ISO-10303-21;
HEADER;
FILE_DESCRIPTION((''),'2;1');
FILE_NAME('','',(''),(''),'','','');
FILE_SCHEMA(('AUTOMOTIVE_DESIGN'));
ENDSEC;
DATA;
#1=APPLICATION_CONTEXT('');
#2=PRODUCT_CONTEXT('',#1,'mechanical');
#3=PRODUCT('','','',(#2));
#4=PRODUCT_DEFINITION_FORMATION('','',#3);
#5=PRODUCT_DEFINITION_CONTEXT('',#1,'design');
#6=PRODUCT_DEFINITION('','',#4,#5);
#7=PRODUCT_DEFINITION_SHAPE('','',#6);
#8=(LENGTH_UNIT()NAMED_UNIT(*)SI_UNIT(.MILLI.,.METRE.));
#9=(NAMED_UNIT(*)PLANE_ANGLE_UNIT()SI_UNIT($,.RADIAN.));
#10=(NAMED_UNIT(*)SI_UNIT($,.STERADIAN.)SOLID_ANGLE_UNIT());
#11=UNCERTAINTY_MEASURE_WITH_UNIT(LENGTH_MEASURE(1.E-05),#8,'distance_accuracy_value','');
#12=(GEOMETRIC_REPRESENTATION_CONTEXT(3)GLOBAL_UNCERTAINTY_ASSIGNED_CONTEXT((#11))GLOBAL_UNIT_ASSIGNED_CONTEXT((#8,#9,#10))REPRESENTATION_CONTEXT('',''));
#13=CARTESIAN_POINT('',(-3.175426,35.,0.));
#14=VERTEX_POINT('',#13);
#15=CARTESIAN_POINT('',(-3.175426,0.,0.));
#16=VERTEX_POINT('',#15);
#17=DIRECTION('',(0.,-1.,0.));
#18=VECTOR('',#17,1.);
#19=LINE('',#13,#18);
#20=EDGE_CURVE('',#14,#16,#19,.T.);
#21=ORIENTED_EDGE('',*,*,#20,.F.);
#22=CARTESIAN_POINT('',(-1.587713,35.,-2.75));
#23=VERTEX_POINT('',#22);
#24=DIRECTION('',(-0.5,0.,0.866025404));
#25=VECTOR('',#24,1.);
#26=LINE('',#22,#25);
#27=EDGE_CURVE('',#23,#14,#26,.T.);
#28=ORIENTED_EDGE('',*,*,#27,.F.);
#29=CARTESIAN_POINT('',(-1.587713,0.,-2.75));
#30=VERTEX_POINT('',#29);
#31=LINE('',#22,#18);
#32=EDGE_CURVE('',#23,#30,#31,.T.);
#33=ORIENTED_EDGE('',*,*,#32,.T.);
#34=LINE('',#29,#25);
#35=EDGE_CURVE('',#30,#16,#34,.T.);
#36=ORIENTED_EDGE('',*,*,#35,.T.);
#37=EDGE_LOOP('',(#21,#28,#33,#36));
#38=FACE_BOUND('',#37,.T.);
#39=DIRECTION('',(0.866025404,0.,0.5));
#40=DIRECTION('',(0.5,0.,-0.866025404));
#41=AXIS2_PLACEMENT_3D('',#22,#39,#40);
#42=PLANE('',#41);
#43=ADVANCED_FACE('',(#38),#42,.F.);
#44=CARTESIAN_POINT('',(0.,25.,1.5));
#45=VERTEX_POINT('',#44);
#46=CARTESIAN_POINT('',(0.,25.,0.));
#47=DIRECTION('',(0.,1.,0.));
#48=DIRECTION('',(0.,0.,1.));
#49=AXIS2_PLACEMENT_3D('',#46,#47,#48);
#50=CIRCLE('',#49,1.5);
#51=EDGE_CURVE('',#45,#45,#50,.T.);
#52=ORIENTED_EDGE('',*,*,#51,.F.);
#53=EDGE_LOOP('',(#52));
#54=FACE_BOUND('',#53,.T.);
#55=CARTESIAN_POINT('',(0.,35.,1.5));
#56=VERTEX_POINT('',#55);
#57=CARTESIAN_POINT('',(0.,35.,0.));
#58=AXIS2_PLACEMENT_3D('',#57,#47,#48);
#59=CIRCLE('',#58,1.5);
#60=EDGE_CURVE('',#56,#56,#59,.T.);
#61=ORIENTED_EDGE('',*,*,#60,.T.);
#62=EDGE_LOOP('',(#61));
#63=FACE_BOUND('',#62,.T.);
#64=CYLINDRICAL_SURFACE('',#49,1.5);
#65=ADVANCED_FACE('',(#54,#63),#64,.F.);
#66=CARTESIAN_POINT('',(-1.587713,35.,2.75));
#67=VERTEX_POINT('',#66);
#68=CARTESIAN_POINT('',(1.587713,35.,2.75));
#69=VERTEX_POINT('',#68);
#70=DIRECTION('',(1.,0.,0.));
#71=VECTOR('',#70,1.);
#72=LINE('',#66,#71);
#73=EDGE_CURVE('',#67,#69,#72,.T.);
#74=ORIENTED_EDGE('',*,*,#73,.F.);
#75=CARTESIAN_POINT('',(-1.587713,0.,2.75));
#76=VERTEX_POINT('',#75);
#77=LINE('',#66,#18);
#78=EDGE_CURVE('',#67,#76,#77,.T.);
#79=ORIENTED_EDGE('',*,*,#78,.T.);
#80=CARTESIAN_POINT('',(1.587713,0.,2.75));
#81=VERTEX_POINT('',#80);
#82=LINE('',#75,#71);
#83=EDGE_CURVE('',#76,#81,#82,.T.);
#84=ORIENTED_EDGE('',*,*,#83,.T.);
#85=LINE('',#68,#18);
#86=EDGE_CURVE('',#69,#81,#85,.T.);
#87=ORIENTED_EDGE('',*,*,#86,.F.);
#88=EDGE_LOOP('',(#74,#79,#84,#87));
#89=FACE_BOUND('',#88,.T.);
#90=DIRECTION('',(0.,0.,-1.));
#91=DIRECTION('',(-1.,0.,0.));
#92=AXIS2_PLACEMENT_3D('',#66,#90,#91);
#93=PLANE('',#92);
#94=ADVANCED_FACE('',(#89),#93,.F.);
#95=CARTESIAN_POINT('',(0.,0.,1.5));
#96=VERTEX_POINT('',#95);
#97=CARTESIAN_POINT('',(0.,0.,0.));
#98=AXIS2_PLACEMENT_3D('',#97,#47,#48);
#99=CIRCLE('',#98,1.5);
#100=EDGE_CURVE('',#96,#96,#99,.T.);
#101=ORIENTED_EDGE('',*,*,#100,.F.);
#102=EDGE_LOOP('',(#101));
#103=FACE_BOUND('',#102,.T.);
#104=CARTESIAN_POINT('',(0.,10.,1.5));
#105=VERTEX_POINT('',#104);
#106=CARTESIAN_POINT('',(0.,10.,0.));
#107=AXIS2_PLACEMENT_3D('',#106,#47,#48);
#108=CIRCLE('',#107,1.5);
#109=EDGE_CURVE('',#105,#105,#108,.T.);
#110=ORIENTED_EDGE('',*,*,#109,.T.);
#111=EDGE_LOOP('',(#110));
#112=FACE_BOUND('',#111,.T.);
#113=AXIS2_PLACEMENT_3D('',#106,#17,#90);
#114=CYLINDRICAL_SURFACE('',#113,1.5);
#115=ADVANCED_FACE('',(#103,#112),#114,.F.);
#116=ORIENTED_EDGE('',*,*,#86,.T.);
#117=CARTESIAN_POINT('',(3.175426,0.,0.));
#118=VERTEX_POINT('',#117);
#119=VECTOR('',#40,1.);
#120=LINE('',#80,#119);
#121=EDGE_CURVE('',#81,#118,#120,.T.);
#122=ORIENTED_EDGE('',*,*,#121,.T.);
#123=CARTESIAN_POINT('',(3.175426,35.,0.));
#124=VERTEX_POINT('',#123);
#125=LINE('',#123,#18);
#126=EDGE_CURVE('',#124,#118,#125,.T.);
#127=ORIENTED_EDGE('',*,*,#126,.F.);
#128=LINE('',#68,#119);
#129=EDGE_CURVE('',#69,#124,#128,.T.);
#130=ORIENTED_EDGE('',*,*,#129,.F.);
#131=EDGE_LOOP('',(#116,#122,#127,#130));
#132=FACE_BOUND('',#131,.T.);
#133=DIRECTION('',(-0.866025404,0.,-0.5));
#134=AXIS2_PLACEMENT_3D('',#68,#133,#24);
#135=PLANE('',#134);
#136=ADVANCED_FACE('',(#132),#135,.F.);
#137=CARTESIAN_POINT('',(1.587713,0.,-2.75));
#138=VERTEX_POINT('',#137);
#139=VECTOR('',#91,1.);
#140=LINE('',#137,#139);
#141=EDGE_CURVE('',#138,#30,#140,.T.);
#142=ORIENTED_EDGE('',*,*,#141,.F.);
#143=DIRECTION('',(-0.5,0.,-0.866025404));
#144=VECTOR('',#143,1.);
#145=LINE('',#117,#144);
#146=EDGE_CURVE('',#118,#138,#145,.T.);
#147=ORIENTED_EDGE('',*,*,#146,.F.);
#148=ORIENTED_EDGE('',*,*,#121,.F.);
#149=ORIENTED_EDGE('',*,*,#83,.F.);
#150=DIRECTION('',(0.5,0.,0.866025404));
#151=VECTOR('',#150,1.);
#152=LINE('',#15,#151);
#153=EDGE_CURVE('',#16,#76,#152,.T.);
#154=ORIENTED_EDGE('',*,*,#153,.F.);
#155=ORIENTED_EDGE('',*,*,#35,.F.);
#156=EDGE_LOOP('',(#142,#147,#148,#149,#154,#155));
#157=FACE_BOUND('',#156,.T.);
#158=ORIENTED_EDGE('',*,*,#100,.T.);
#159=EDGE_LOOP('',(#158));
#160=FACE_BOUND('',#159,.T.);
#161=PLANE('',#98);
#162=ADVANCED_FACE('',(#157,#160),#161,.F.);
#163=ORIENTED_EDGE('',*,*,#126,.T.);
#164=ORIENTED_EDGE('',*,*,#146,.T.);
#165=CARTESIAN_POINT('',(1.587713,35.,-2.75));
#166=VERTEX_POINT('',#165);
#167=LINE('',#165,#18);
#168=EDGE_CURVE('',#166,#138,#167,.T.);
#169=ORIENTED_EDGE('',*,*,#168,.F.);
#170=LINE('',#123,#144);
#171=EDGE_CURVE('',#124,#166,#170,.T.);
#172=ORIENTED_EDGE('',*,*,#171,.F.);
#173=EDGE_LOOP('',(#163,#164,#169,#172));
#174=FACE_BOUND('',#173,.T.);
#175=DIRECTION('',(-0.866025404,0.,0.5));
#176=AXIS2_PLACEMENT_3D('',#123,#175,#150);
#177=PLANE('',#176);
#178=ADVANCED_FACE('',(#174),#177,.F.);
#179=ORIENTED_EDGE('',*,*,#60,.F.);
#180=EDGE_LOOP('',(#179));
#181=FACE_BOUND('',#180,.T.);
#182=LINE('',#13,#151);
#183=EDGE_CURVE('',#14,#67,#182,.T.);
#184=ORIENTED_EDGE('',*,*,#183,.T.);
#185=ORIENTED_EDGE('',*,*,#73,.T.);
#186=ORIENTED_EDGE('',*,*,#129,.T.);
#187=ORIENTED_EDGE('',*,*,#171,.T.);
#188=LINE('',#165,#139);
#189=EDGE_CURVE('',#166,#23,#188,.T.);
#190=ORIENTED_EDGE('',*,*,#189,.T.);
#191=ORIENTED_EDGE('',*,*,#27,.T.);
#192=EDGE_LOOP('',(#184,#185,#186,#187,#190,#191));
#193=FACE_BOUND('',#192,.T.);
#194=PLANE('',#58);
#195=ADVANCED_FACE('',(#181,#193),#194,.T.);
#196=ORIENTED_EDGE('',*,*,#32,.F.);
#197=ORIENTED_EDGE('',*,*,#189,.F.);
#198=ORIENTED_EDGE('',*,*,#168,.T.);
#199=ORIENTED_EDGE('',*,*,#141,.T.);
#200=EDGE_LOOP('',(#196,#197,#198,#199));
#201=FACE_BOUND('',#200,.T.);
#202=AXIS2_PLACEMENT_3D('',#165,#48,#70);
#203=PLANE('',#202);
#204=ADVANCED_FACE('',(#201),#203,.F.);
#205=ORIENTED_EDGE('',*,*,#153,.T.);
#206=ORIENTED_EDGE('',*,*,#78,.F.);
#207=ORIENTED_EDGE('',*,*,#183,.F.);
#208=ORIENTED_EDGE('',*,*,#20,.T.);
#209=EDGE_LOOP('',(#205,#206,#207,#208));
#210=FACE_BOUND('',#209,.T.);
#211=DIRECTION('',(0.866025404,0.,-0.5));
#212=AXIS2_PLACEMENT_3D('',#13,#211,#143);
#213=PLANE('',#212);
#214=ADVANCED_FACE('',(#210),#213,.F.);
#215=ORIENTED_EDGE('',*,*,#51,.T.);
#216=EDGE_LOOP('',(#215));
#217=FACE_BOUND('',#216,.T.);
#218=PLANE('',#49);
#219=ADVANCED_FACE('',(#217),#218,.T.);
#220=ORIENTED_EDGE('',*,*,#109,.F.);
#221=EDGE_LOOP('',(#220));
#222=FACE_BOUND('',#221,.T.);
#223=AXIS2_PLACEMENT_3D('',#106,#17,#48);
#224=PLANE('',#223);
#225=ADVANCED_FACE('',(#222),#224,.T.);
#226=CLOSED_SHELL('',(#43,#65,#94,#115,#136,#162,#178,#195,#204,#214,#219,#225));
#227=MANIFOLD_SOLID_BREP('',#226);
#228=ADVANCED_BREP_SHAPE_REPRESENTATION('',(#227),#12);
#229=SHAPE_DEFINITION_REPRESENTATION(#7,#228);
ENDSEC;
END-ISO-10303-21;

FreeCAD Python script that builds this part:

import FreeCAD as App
import Part
import Sketcher
Q = App.Units.Quantity

doc = App.newDocument("Part")
params = doc.addObject("Spreadsheet::Sheet", "Params")
for row, (alias, value) in enumerate([
    ("pad1_length", "35 mm"),
    ("sketch2_diameter", "3 mm"),
    ("pocket1_length", "10 mm"),
], start=1):
    params.set(f"A{row}", alias)
    params.set(f"B{row}", "=" + value)
    params.setAlias(f"B{row}", alias)

body = doc.addObject("PartDesign::Body", "Body")

sketch1 = body.newObject("Sketcher::SketchObject", "Sketch")
sketch1.AttachmentSupport = (doc.getObject("XZ_Plane"), [""])
sketch1.MapMode = "FlatFace"
sketch1.addGeometry([
    Part.LineSegment(App.Vector(3.175426, 0, 0), App.Vector(1.587713, -2.75, 0)),
    Part.LineSegment(App.Vector(1.587713, -2.75, 0), App.Vector(-1.587713, -2.75, 0)),
    Part.LineSegment(App.Vector(-1.587713, -2.75, 0), App.Vector(-3.175426, 0, 0)),
    Part.LineSegment(App.Vector(-3.175426, 0, 0), App.Vector(-1.587713, 2.75, 0)),
    Part.LineSegment(App.Vector(-1.587713, 2.75, 0), App.Vector(1.587713, 2.75, 0)),
    Part.LineSegment(App.Vector(1.587713, 2.75, 0), App.Vector(3.175426, 0, 0)),
], False)
sketch1.addConstraint([
    Sketcher.Constraint("Coincident", 0, 2, 1, 1),
    Sketcher.Constraint("Coincident", 1, 2, 2, 1),
    Sketcher.Constraint("Coincident", 2, 2, 3, 1),
    Sketcher.Constraint("Coincident", 3, 2, 4, 1),
    Sketcher.Constraint("Coincident", 4, 2, 5, 1),
    Sketcher.Constraint("Coincident", 5, 2, 0, 1),
    Sketcher.Constraint("Horizontal", 1),
    Sketcher.Constraint("Horizontal", 4),
    Sketcher.Constraint("Symmetric", 0, 2, 3, 2, -1, 1),
    Sketcher.Constraint("Symmetric", 2, 2, 5, 2, -1, 1),
    Sketcher.Constraint("PointOnObject", 2, 2, -1),
    Sketcher.Constraint("Parallel", 2, 5),
    Sketcher.Constraint("Vertical", 1, 2, 3, 2),
    Sketcher.Constraint("Angle", 0, Q("-120 deg")),
    Sketcher.Constraint("DistanceY", 1, 2, 3, 2, Q("5.5 mm")),
    Sketcher.Constraint("DistanceX", 1, 2, 1, 1, Q("3.175426 mm")),
])
pad1 = body.newObject("PartDesign::Pad", "Pad")
pad1.Profile = sketch1
pad1.setExpression("Length", "Params.pad1_length")
pad1.Reversed = True

sketch2 = body.newObject("Sketcher::SketchObject", "Sketch001")
sketch2.AttachmentSupport = (doc.getObject("XZ_Plane"), [""])
sketch2.MapMode = "FlatFace"
sketch2.AttachmentOffset = App.Placement(App.Vector(0, 0, -35), App.Rotation())
sketch2.addGeometry(Part.Circle(App.Vector(0, 0, 0), App.Vector(0, 0, 1), 1.5), False)
sketch2.addConstraint([
    Sketcher.Constraint("Coincident", 0, 3, -1, 1),
    Sketcher.Constraint("Diameter", 0, Q("3 mm")),
])
sketch2.setExpression("Constraints[1]", "Params.sketch2_diameter")
pocket1 = body.newObject("PartDesign::Pocket", "Pocket")
pocket1.Profile = sketch2
pocket1.setExpression("Length", "Params.pocket1_length")
pocket1.Reversed = True
doc.recompute()

datumplane = body.newObject("PartDesign::Plane", "DatumPlane")
datumplane.AttachmentSupport = (doc.getObject("XZ_Plane"), [""])
datumplane.MapMode = "FlatFace"
datumplane.AttachmentOffset = App.Placement(App.Vector(0, 0, -17.5), App.Rotation())
mirrored = body.newObject("PartDesign::Mirrored", "Mirrored")
mirrored.Originals = [pocket1]
mirrored.MirrorPlane = (datumplane, [""])
body.Tip = mirrored

doc.recompute()
